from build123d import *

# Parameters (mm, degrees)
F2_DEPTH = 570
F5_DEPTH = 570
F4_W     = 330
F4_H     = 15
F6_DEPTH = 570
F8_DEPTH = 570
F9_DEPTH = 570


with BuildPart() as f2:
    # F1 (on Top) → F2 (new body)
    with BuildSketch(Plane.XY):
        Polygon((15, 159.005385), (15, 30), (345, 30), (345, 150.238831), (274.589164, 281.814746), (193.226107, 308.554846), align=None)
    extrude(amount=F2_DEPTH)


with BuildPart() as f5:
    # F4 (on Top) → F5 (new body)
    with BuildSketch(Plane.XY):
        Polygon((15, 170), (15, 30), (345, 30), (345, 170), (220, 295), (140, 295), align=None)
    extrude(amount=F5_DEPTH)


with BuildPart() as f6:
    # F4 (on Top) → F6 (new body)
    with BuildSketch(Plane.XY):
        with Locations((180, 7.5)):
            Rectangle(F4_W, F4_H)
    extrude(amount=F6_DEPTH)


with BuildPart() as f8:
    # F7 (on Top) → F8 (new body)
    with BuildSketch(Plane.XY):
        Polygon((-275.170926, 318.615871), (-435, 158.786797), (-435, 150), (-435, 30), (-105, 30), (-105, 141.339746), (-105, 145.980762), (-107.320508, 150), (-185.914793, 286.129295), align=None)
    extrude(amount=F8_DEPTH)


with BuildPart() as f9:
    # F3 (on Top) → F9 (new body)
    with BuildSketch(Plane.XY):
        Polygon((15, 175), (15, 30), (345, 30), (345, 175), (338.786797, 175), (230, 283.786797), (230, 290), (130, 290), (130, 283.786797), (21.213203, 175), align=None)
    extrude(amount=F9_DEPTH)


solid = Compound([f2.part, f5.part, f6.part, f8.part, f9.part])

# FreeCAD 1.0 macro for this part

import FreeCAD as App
import Part
import Sketcher
from FreeCAD import Vector
Q = App.Units.Quantity


def add_polygon(sketch, points):
    """Adds a closed chain of lines whose ends are joined by coincident constraints."""
    first, n = sketch.GeometryCount, len(points)
    for a, b in zip(points, points[1:] + points[:1]):
        sketch.addGeometry(Part.LineSegment(App.Vector(*a, 0), App.Vector(*b, 0)), False)
    for i in range(n):
        sketch.addConstraint(Sketcher.Constraint("Coincident", first + i, 2, first + (i + 1) % n, 1))

doc = App.newDocument("Part")
params = doc.addObject("Spreadsheet::Sheet", "Params")
for row, (alias, value) in enumerate([
    ("sketch1_width", "330 mm"),
    ("pad1_length", "570 mm"),
    ("sketch2_width", "330 mm"),
    ("sketch2_width2", "80 mm"),
    ("sketch2_height", "140 mm"),
    ("pad2_length", "570 mm"),
    ("sketch3_width", "330 mm"),
    ("sketch3_height", "15 mm"),
    ("pad3_length", "570 mm"),
    ("sketch4_width", "330 mm"),
    ("pad4_length", "570 mm"),
    ("sketch5_width", "330 mm"),
    ("sketch5_width2", "100 mm"),
    ("sketch5_height", "145 mm"),
    ("pad5_length", "570 mm"),
], start=1):
    params.set(f"A{row}", alias)
    params.set(f"B{row}", "=" + value)
    params.setAlias(f"B{row}", alias)

body = doc.addObject("PartDesign::Body", "Body")

# Sketch on XY plane
sketch1 = body.newObject("Sketcher::SketchObject", "Sketch")
sketch1.AttachmentSupport = (doc.getObject("XY_Plane"), [""])
sketch1.MapMode = "FlatFace"
add_polygon(sketch1, [(15, 159), (15, 30), (345, 30), (345, 150), (275, 282), (193, 309)])  # lines 0-5
sketch1.addConstraint([
    Sketcher.Constraint("Vertical", 0),
    Sketcher.Constraint("Horizontal", 1),
    Sketcher.Constraint("Vertical", 2),
    Sketcher.Constraint("DistanceX", 1, 1, 1, 2, Q("330 mm")),
    Sketcher.Constraint("Angle", 5, Q("-140 deg")),
    Sketcher.Constraint("DistanceX", -1, 1, 0, 2, Q("15 mm")),
    Sketcher.Constraint("DistanceY", -1, 1, 0, 2, Q("30 mm")),
    Sketcher.Constraint("DistanceY", 2, 1, 2, 2, Q("120.238831 mm")),
    Sketcher.Constraint("DistanceY", 3, 2, 4, 2, Q("26.7401 mm")),
    Sketcher.Constraint("Distance", 5, Q("232.657659 mm")),
    Sketcher.Constraint("DistanceY", 0, 2, 0, 1, Q("129.005385 mm")),
    Sketcher.Constraint("Distance", 3, Q("149.231053 mm")),
])
sketch1.setExpression("Constraints[9]", "Params.sketch1_width")
pad1 = body.newObject("PartDesign::Pad", "Pad")
pad1.Profile = sketch1
pad1.setExpression("Length", "Params.pad1_length")
body2 = doc.addObject("PartDesign::Body", "Body001")

# Sketch on XY plane
sketch2 = body2.newObject("Sketcher::SketchObject", "Sketch001")
sketch2.AttachmentSupport = (doc.getObject("XY_Plane001"), [""])
sketch2.MapMode = "FlatFace"
add_polygon(sketch2, [(15, 170), (15, 30), (345, 30), (345, 170), (220, 295), (140, 295)])  # lines 0-5
sketch2.addConstraint([
    Sketcher.Constraint("Vertical", 0),
    Sketcher.Constraint("Horizontal", 1),
    Sketcher.Constraint("Vertical", 2),
    Sketcher.Constraint("Horizontal", 4),
    Sketcher.Constraint("Perpendicular", 3, 5),
    Sketcher.Constraint("Horizontal", 2, 2, 5, 2),
    Sketcher.Constraint("Equal", 3, 5),
    Sketcher.Constraint("DistanceX", 1, 1, 1, 2, Q("330 mm")),
    Sketcher.Constraint("DistanceX", 4, 2, 4, 1, Q("80 mm")),
    Sketcher.Constraint("DistanceY", 0, 2, 0, 1, Q("140 mm")),
    Sketcher.Constraint("DistanceX", -1, 1, 0, 2, Q("15 mm")),
    Sketcher.Constraint("DistanceY", -1, 1, 0, 2, Q("30 mm")),
])
sketch2.setExpression("Constraints[13]", "Params.sketch2_width")
sketch2.setExpression("Constraints[14]", "Params.sketch2_width2")
sketch2.setExpression("Constraints[15]", "Params.sketch2_height")
pad2 = body2.newObject("PartDesign::Pad", "Pad001")
pad2.Profile = sketch2
pad2.setExpression("Length", "Params.pad2_length")
body3 = doc.addObject("PartDesign::Body", "Body002")

# Sketch on XY plane
sketch3 = body3.newObject("Sketcher::SketchObject", "Sketch002")
sketch3.AttachmentSupport = (doc.getObject("XY_Plane002"), [""])
sketch3.MapMode = "FlatFace"
add_polygon(sketch3, [(15, 15), (15, 0), (345, 0), (345, 15)])  # lines 0-3
sketch3.addConstraint([
    Sketcher.Constraint("Vertical", 0),
    Sketcher.Constraint("Horizontal", 1),
    Sketcher.Constraint("Vertical", 2),
    Sketcher.Constraint("Horizontal", 3),
    Sketcher.Constraint("PointOnObject", 0, 2, -1),
    Sketcher.Constraint("DistanceX", 1, 1, 1, 2, Q("330 mm")),
    Sketcher.Constraint("DistanceY", 0, 2, 0, 1, Q("15 mm")),
    Sketcher.Constraint("DistanceX", -1, 1, 0, 2, Q("15 mm")),
])
sketch3.setExpression("Constraints[9]", "Params.sketch3_width")
sketch3.setExpression("Constraints[10]", "Params.sketch3_height")
pad3 = body3.newObject("PartDesign::Pad", "Pad002")
pad3.Profile = sketch3
pad3.setExpression("Length", "Params.pad3_length")
body4 = doc.addObject("PartDesign::Body", "Body003")

# Sketch on XY plane
sketch4 = body4.newObject("Sketcher::SketchObject", "Sketch003")
sketch4.AttachmentSupport = (doc.getObject("XY_Plane003"), [""])
sketch4.MapMode = "FlatFace"
add_polygon(sketch4, [(-275.2, 318.6), (-435, 158.8), (-435, 30), (-105, 30), (-105, 146), (-107.3, 150), (-185.9, 286.1)])  # lines 0-6
sketch4.addConstraint([
    Sketcher.Constraint("Vertical", 1),
    Sketcher.Constraint("Horizontal", 2),
    Sketcher.Constraint("Vertical", 3),
    Sketcher.Constraint("Parallel", 4, 5),
    Sketcher.Constraint("DistanceX", 2, 1, 2, 2, Q("330 mm")),
    Sketcher.Constraint("Angle", 0, Q("-135 deg")),
    Sketcher.Constraint("Angle", 4, Q("119.999998 deg")),
    Sketcher.Constraint("Angle", 6, Q("160 deg")),
    Sketcher.Constraint("DistanceX", 0, 2, -1, 1, Q("435 mm")),
    Sketcher.Constraint("DistanceY", -1, 1, 1, 2, Q("30 mm")),
    Sketcher.Constraint("DistanceY", -1, 1, 4, 2, Q("150 mm")),
    Sketcher.Constraint("DistanceY", 3, 1, 3, 2, Q("115.980762 mm")),
    Sketcher.Constraint("DistanceY", 0, 2, 5, 2, Q("127.342498 mm")),
    Sketcher.Constraint("Distance", 5, Q("157.18857 mm")),
])
sketch4.setExpression("Constraints[11]", "Params.sketch4_width")
pad4 = body4.newObject("PartDesign::Pad", "Pad003")
pad4.Profile = sketch4
pad4.setExpression("Length", "Params.pad4_length")
body5 = doc.addObject("PartDesign::Body", "Body004")

# Sketch on XY plane
sketch5 = body5.newObject("Sketcher::SketchObject", "Sketch004")
sketch5.AttachmentSupport = (doc.getObject("XY_Plane004"), [""])
sketch5.MapMode = "FlatFace"
add_polygon(sketch5, [(15, 175), (15, 30), (345, 30), (345, 175), (339, 175), (230, 284), (230, 290), (130, 290), (130, 284), (21, 175)])  # lines 0-9
sketch5.addConstraint([
    Sketcher.Constraint("Vertical", 0),
    Sketcher.Constraint("Horizontal", 1),
    Sketcher.Constraint("Vertical", 2),
    Sketcher.Constraint("Horizontal", 3),
    Sketcher.Constraint("Vertical", 5),
    Sketcher.Constraint("Horizontal", 6),
    Sketcher.Constraint("Vertical", 7),
    Sketcher.Constraint("Horizontal", 9),
    Sketcher.Constraint("Perpendicular", 4, 8),
    Sketcher.Constraint("Horizontal", 4, 2, 7, 2),
    Sketcher.Constraint("Horizontal", 3, 2, 8, 2),
    Sketcher.Constraint("Equal", 3, 9),
    Sketcher.Constraint("Equal", 9, 5),
    Sketcher.Constraint("Equal", 4, 8),
    Sketcher.Constraint("DistanceX", 1, 1, 1, 2, Q("330 mm")),
    Sketcher.Constraint("DistanceX", 6, 2, 6, 1, Q("100 mm")),
    Sketcher.Constraint("DistanceY", 0, 2, 0, 1, Q("145 mm")),
    Sketcher.Constraint("DistanceX", -1, 1, 0, 2, Q("15 mm")),
    Sketcher.Constraint("DistanceY", -1, 1, 0, 2, Q("30 mm")),
    Sketcher.Constraint("DistanceX", 3, 2, 3, 1, Q("6.213203 mm")),
])
sketch5.setExpression("Constraints[24]", "Params.sketch5_width")
sketch5.setExpression("Constraints[25]", "Params.sketch5_width2")
sketch5.setExpression("Constraints[26]", "Params.sketch5_height")
pad5 = body5.newObject("PartDesign::Pad", "Pad004")
pad5.Profile = sketch5
pad5.setExpression("Length", "Params.pad5_length")

doc.recompute()
